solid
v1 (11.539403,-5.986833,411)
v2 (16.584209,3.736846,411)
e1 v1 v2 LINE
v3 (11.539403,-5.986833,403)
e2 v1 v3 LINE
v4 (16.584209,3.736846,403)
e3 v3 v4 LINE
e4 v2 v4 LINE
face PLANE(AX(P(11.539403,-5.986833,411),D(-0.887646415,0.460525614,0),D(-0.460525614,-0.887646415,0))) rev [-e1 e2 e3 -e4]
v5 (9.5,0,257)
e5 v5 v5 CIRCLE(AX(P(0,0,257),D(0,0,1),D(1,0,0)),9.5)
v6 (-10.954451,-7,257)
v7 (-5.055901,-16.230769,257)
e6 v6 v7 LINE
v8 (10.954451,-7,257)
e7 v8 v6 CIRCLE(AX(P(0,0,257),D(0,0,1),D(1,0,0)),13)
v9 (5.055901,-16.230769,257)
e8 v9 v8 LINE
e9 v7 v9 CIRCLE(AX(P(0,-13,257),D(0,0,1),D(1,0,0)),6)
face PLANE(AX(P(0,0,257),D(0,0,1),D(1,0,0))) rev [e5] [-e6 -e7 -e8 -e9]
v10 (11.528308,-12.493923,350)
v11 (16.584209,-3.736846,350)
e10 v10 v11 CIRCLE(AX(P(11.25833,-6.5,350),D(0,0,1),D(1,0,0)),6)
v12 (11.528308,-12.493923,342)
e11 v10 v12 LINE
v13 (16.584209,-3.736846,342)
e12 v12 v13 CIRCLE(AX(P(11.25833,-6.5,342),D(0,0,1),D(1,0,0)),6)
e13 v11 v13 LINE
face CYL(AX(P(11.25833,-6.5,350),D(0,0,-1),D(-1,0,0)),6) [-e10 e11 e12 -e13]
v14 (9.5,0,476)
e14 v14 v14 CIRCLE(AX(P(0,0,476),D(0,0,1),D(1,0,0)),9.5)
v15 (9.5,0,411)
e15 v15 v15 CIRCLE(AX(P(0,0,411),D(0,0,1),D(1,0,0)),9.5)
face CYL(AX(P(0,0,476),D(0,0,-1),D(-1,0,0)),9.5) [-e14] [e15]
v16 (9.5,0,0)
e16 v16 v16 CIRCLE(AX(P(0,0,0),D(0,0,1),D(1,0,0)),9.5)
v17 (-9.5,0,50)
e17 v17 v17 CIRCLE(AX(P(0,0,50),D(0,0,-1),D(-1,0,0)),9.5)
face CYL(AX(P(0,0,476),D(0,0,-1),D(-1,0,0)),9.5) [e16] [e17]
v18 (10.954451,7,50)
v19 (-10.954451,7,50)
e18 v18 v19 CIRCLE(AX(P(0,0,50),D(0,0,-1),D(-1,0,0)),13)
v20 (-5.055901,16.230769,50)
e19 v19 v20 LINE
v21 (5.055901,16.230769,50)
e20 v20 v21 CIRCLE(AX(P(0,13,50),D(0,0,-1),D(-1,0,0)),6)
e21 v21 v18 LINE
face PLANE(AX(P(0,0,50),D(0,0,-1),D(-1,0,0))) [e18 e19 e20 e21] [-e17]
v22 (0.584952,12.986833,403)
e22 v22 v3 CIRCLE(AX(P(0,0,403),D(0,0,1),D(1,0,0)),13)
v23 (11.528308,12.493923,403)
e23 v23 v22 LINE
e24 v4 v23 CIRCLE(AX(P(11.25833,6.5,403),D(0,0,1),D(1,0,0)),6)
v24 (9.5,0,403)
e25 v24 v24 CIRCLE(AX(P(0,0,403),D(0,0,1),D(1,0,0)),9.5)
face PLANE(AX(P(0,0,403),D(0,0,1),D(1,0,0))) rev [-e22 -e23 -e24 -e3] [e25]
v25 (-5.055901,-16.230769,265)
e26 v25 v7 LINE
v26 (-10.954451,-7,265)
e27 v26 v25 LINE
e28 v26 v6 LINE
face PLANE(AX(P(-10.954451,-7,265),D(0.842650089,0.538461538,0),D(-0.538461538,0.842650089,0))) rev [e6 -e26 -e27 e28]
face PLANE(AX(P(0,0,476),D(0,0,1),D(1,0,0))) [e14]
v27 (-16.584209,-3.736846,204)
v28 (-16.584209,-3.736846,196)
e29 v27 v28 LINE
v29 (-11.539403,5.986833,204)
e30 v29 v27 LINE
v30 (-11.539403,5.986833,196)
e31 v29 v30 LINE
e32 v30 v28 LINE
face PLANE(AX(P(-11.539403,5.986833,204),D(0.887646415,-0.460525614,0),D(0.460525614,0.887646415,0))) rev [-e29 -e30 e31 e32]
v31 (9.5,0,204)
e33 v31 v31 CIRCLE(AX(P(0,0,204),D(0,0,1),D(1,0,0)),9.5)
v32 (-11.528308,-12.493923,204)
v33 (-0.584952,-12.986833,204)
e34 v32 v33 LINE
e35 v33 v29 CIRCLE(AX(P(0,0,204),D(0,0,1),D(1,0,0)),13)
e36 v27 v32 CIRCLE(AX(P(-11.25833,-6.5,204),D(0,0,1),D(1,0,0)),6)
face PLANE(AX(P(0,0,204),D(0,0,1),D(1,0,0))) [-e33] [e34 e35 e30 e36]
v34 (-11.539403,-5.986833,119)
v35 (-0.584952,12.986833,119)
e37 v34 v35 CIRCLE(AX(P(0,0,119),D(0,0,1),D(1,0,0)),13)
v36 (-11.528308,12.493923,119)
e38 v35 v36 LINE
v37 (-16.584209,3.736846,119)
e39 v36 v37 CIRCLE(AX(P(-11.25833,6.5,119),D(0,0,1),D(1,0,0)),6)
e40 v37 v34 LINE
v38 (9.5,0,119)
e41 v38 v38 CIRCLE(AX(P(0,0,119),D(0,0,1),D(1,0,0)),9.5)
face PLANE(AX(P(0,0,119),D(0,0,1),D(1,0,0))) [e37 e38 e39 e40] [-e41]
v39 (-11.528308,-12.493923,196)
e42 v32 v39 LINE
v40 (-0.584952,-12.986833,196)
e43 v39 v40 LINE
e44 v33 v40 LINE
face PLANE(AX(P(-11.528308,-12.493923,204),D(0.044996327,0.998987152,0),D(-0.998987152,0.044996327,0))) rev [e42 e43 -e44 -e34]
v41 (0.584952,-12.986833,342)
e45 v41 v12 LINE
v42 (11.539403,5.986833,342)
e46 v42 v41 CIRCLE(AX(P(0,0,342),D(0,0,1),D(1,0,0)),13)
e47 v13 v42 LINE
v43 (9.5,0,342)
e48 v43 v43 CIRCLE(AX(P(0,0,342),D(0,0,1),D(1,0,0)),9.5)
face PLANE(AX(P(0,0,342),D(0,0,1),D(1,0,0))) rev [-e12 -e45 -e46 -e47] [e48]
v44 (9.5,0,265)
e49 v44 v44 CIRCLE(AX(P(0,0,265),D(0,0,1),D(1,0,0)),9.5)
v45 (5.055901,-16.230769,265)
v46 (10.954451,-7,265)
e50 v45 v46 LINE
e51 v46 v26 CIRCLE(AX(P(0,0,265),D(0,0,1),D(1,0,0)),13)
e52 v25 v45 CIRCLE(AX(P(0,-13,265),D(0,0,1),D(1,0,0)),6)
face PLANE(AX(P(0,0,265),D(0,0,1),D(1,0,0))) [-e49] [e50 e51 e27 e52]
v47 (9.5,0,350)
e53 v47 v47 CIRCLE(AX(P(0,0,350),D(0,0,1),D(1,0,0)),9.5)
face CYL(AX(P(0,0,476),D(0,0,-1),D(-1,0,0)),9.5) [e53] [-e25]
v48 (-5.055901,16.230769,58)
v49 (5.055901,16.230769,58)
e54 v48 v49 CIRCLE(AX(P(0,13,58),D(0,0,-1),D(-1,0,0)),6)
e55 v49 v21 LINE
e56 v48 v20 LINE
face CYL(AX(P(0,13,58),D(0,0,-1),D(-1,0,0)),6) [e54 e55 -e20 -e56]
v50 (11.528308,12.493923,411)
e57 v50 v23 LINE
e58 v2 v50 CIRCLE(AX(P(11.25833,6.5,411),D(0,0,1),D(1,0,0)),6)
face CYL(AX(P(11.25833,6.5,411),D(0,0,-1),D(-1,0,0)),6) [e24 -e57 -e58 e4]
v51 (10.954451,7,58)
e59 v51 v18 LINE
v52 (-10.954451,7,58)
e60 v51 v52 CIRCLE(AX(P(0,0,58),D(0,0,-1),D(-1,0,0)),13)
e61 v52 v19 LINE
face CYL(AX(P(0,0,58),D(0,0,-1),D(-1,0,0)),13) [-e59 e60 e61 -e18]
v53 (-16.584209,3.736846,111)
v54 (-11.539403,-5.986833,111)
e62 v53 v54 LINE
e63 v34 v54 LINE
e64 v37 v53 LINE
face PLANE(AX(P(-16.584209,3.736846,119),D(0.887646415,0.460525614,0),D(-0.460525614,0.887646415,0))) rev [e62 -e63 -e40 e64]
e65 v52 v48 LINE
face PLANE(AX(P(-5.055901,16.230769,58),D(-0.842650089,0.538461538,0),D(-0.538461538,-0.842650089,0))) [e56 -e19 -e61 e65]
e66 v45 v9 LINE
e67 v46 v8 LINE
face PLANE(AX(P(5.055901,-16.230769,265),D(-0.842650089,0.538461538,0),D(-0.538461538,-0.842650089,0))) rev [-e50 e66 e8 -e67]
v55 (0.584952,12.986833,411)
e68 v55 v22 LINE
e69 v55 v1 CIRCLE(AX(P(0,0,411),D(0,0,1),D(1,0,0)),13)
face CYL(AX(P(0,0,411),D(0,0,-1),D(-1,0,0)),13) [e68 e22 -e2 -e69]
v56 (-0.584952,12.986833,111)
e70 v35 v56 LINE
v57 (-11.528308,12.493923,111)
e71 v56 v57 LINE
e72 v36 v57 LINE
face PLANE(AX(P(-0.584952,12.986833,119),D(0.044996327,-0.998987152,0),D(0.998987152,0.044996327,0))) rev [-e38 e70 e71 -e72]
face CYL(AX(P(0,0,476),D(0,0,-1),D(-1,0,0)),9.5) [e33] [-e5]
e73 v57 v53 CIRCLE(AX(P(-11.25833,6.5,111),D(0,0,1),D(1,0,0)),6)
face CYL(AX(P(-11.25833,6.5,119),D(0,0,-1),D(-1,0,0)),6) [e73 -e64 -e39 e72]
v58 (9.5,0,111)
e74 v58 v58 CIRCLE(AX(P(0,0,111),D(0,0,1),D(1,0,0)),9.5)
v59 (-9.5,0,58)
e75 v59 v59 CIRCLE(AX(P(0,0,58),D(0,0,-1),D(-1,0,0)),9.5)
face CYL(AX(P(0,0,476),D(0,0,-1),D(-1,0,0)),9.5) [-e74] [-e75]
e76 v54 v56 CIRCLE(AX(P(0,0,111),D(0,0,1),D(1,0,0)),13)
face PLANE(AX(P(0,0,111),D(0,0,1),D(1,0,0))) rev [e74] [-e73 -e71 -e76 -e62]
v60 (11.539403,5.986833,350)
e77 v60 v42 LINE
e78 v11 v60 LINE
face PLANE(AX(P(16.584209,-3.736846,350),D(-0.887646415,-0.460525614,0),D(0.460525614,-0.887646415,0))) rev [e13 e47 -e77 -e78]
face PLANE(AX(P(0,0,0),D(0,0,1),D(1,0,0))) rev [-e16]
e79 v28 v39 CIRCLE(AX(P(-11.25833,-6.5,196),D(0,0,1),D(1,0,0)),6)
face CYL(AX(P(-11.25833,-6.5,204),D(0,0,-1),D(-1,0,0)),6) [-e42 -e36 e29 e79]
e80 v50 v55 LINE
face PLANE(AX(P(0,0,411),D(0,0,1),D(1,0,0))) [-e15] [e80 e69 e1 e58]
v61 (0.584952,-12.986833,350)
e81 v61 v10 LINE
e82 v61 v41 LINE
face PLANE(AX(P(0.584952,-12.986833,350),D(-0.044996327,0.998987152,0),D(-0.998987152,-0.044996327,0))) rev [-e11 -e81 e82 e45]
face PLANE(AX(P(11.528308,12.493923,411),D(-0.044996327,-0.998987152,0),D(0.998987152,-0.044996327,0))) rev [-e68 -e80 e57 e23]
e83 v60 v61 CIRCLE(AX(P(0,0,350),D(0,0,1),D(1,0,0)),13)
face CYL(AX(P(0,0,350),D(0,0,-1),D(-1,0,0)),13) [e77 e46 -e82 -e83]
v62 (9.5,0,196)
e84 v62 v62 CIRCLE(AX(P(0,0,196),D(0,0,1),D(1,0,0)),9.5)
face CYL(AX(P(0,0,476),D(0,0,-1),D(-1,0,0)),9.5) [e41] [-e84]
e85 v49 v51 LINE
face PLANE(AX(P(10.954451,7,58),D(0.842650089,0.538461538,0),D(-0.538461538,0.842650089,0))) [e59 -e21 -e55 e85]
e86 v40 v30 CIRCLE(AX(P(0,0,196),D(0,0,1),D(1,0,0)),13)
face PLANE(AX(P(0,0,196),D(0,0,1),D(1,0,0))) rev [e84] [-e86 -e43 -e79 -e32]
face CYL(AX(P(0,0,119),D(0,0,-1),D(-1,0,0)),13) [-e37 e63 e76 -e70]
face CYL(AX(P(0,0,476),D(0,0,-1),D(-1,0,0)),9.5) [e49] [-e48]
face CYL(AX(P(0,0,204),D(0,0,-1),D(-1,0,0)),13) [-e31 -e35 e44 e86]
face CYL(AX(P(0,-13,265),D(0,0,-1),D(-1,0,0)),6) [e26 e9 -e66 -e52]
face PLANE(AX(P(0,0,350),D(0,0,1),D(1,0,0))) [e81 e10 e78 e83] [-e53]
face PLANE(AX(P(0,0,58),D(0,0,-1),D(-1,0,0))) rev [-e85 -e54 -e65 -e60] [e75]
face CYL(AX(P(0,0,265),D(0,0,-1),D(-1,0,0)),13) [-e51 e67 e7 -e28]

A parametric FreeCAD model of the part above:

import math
import FreeCAD as App
import Part
import Sketcher

V = App.Vector

doc = App.newDocument("Part")
params = doc.addObject("Spreadsheet::Sheet", "Params")
for row, (alias, value) in enumerate([
    ("sketch1_diameter", "19 mm"),
    ("pad1_length", "476 mm"),
    ("sketch2_radius", "13 mm"),
    ("sketch2_radius2", "6 mm"),
    ("pad2_length", "8 mm"),
    ("sketch3_radius", "6 mm"),
    ("sketch3_radius2", "13 mm"),
    ("pad3_length", "8 mm"),
    ("sketch4_radius", "6 mm"),
    ("sketch4_radius2", "13 mm"),
    ("pad4_length", "8 mm"),
    ("sketch5_radius", "6 mm"),
    ("sketch5_radius2", "13 mm"),
    ("pad5_length", "8 mm"),
    ("sketch6_radius", "6 mm"),
    ("sketch6_radius2", "13 mm"),
    ("pad6_length", "8 mm"),
    ("sketch7_radius", "6 mm"),
    ("sketch7_radius2", "13 mm"),
    ("pad7_length", "8 mm"),
], start=1):
    params.set(f"A{row}", alias)
    params.set(f"B{row}", "=" + value)
    params.setAlias(f"B{row}", alias)

body = doc.addObject("PartDesign::Body", "Body")

sketch1 = doc.addObject("Sketcher::SketchObject", "Sketch")
body.addObject(sketch1)
sketch1.AttachmentSupport = (doc.XY_Plane, [""])
sketch1.MapMode = "FlatFace"
sketch1.addGeometry(Part.Circle(V(0, 0, 0), V(0, 0, 1), 10), False)
sketch1.addConstraint(Sketcher.Constraint("Coincident", 0, 3, -1, 1))
sketch1.addConstraint(Sketcher.Constraint("Diameter", 0, 19.0))
sketch1.setExpression("Constraints[1]", "Params.sketch1_diameter")
pad1 = doc.addObject("PartDesign::Pad", "Pad")
body.addObject(pad1)
pad1.Profile = sketch1
pad1.setExpression("Length", "Params.pad1_length")

sketch2 = doc.addObject("Sketcher::SketchObject", "Sketch001")
body.addObject(sketch2)
sketch2.AttachmentSupport = (doc.XY_Plane, [""])
sketch2.MapMode = "FlatFace"
sketch2.AttachmentOffset = App.Placement(V(0, 0, 50), App.Rotation())
sketch2.addGeometry(Part.LineSegment(V(5, 16, 0), V(11, 7, 0)), False)
sketch2.addGeometry(Part.ArcOfCircle(Part.Circle(V(0, 0, 0), V(0, 0, 1), 13), math.radians(147), math.radians(393)), False)
sketch2.addGeometry(Part.LineSegment(V(-11, 7, 0), V(-5, 16, 0)), False)
sketch2.addGeometry(Part.ArcOfCircle(Part.Circle(V(0, 13, 0), V(0, 0, 1), 6), math.radians(33), math.radians(147)), False)
sketch2.addConstraint(Sketcher.Constraint("Tangent", 0, 2, 1, 2))
sketch2.addConstraint(Sketcher.Constraint("Tangent", 1, 1, 2, 1))
sketch2.addConstraint(Sketcher.Constraint("Tangent", 2, 2, 3, 2))
sketch2.addConstraint(Sketcher.Constraint("Tangent", 3, 1, 0, 1))
sketch2.addConstraint(Sketcher.Constraint("Coincident", 1, 3, -1, 1))
sketch2.addConstraint(Sketcher.Constraint("PointOnObject", 3, 3, -2))
sketch2.addConstraint(Sketcher.Constraint("Radius", 1, 13.0))
sketch2.addConstraint(Sketcher.Constraint("Radius", 3, 6.0))
sketch2.addConstraint(Sketcher.Constraint("DistanceY", -1, 1, 3, 3, 13.0))
sketch2.setExpression("Constraints[6]", "Params.sketch2_radius")
sketch2.setExpression("Constraints[7]", "Params.sketch2_radius2")
pad2 = doc.addObject("PartDesign::Pad", "Pad001")
body.addObject(pad2)
pad2.Profile = sketch2
pad2.setExpression("Length", "Params.pad2_length")

sketch3 = doc.addObject("Sketcher::SketchObject", "Sketch002")
body.addObject(sketch3)
sketch3.AttachmentSupport = (doc.XY_Plane, [""])
sketch3.MapMode = "FlatFace"
sketch3.AttachmentOffset = App.Placement(V(0, 0, 111), App.Rotation())
sketch3.addGeometry(Part.LineSegment(V(-1, 13, 0), V(-12, 12, 0)), False)
sketch3.addGeometry(Part.ArcOfCircle(Part.Circle(V(-11, 6, 0), V(0, 0, 1), 6), math.radians(93), math.radians(207)), False)
sketch3.addGeometry(Part.LineSegment(V(-17, 4, 0), V(-12, -6, 0)), False)
sketch3.addGeometry(Part.ArcOfCircle(Part.Circle(V(0, 0, 0), V(0, 0, 1), 13), math.radians(-153), math.radians(93)), False)
sketch3.addConstraint(Sketcher.Constraint("Tangent", 0, 2, 1, 1))
sketch3.addConstraint(Sketcher.Constraint("Tangent", 1, 2, 2, 1))
sketch3.addConstraint(Sketcher.Constraint("Tangent", 2, 2, 3, 1))
sketch3.addConstraint(Sketcher.Constraint("Tangent", 3, 2, 0, 1))
sketch3.addConstraint(Sketcher.Constraint("Coincident", 3, 3, -1, 1))
sketch3.addConstraint(Sketcher.Constraint("Radius", 1, 6.0))
sketch3.addConstraint(Sketcher.Constraint("Radius", 3, 13.0))
sketch3.addConstraint(Sketcher.Constraint("DistanceY", -1, 1, 1, 3, 6.5))
sketch3.addConstraint(Sketcher.Constraint("DistanceX", 1, 2, 0, 2, 5.055901))
sketch3.setExpression("Constraints[5]", "Params.sketch3_radius")
sketch3.setExpression("Constraints[6]", "Params.sketch3_radius2")
pad3 = doc.addObject("PartDesign::Pad", "Pad002")
body.addObject(pad3)
pad3.Profile = sketch3
pad3.setExpression("Length", "Params.pad3_length")

sketch4 = doc.addObject("Sketcher::SketchObject", "Sketch003")
body.addObject(sketch4)
sketch4.AttachmentSupport = (doc.XY_Plane, [""])
sketch4.MapMode = "FlatFace"
sketch4.AttachmentOffset = App.Placement(V(0, 0, 196), App.Rotation())
sketch4.addGeometry(Part.LineSegment(V(-12, 6, 0), V(-17, -4, 0)), False)
sketch4.addGeometry(Part.ArcOfCircle(Part.Circle(V(-11, -6, 0), V(0, 0, 1), 6), math.radians(153), math.radians(267)), False)
sketch4.addGeometry(Part.LineSegment(V(-12, -12, 0), V(-1, -13, 0)), False)
sketch4.addGeometry(Part.ArcOfCircle(Part.Circle(V(0, 0, 0), V(0, 0, 1), 13), math.radians(-93), math.radians(153)), False)
sketch4.addConstraint(Sketcher.Constraint("Tangent", 0, 2, 1, 1))
sketch4.addConstraint(Sketcher.Constraint("Tangent", 1, 2, 2, 1))
sketch4.addConstraint(Sketcher.Constraint("Tangent", 2, 2, 3, 1))
sketch4.addConstraint(Sketcher.Constraint("Tangent", 3, 2, 0, 1))
sketch4.addConstraint(Sketcher.Constraint("Coincident", 3, 3, -1, 1))
sketch4.addConstraint(Sketcher.Constraint("Radius", 1, 6.0))
sketch4.addConstraint(Sketcher.Constraint("Radius", 3, 13.0))
sketch4.addConstraint(Sketcher.Constraint("DistanceY", 1, 3, -1, 1, 6.5))
sketch4.addConstraint(Sketcher.Constraint("DistanceX", 0, 2, 1, 2, 5.055901))
sketch4.setExpression("Constraints[5]", "Params.sketch4_radius")
sketch4.setExpression("Constraints[6]", "Params.sketch4_radius2")
pad4 = doc.addObject("PartDesign::Pad", "Pad003")
body.addObject(pad4)
pad4.Profile = sketch4
pad4.setExpression("Length", "Params.pad4_length")

sketch5 = doc.addObject("Sketcher::SketchObject", "Sketch004")
body.addObject(sketch5)
sketch5.AttachmentSupport = (doc.XY_Plane, [""])
sketch5.MapMode = "FlatFace"
sketch5.AttachmentOffset = App.Placement(V(0, 0, 257), App.Rotation())
sketch5.addGeometry(Part.LineSegment(V(-11, -7, 0), V(-5, -16, 0)), False)
sketch5.addGeometry(Part.ArcOfCircle(Part.Circle(V(0, -13, 0), V(0, 0, 1), 6), math.radians(-147), math.radians(-33)), False)
sketch5.addGeometry(Part.LineSegment(V(5, -16, 0), V(11, -7, 0)), False)
sketch5.addGeometry(Part.ArcOfCircle(Part.Circle(V(0, 0, 0), V(0, 0, 1), 13), math.radians(-33), math.radians(213)), False)
sketch5.addConstraint(Sketcher.Constraint("Tangent", 0, 2, 1, 1))
sketch5.addConstraint(Sketcher.Constraint("Tangent", 1, 2, 2, 1))
sketch5.addConstraint(Sketcher.Constraint("Tangent", 2, 2, 3, 1))
sketch5.addConstraint(Sketcher.Constraint("Tangent", 3, 2, 0, 1))
sketch5.addConstraint(Sketcher.Constraint("Coincident", 3, 3, -1, 1))
sketch5.addConstraint(Sketcher.Constraint("PointOnObject", 1, 3, -2))
sketch5.addConstraint(Sketcher.Constraint("Radius", 1, 6.0))
sketch5.addConstraint(Sketcher.Constraint("Radius", 3, 13.0))
sketch5.addConstraint(Sketcher.Constraint("DistanceY", 1, 3, -1, 1, 13.0))
sketch5.setExpression("Constraints[6]", "Params.sketch5_radius")
sketch5.setExpression("Constraints[7]", "Params.sketch5_radius2")
pad5 = doc.addObject("PartDesign::Pad", "Pad004")
body.addObject(pad5)
pad5.Profile = sketch5
pad5.setExpression("Length", "Params.pad5_length")

sketch6 = doc.addObject("Sketcher::SketchObject", "Sketch005")
body.addObject(sketch6)
sketch6.AttachmentSupport = (doc.XY_Plane, [""])
sketch6.MapMode = "FlatFace"
sketch6.AttachmentOffset = App.Placement(V(0, 0, 342), App.Rotation())
sketch6.addGeometry(Part.LineSegment(V(1, -13, 0), V(12, -12, 0)), False)
sketch6.addGeometry(Part.ArcOfCircle(Part.Circle(V(11, -6, 0), V(0, 0, 1), 6), math.radians(-87), math.radians(27)), False)
sketch6.addGeometry(Part.LineSegment(V(17, -4, 0), V(12, 6, 0)), False)
sketch6.addGeometry(Part.ArcOfCircle(Part.Circle(V(0, 0, 0), V(0, 0, 1), 13), math.radians(27), math.radians(273)), False)
sketch6.addConstraint(Sketcher.Constraint("Tangent", 0, 2, 1, 1))
sketch6.addConstraint(Sketcher.Constraint("Tangent", 1, 2, 2, 1))
sketch6.addConstraint(Sketcher.Constraint("Tangent", 2, 2, 3, 1))
sketch6.addConstraint(Sketcher.Constraint("Tangent", 3, 2, 0, 1))
sketch6.addConstraint(Sketcher.Constraint("Coincident", 3, 3, -1, 1))
sketch6.addConstraint(Sketcher.Constraint("Radius", 1, 6.0))
sketch6.addConstraint(Sketcher.Constraint("Radius", 3, 13.0))
sketch6.addConstraint(Sketcher.Constraint("DistanceY", 1, 3, -1, 1, 6.5))
sketch6.addConstraint(Sketcher.Constraint("DistanceX", 0, 2, 1, 2, 5.055901))
sketch6.setExpression("Constraints[5]", "Params.sketch6_radius")
sketch6.setExpression("Constraints[6]", "Params.sketch6_radius2")
pad6 = doc.addObject("PartDesign::Pad", "Pad005")
body.addObject(pad6)
pad6.Profile = sketch6
pad6.setExpression("Length", "Params.pad6_length")

sketch7 = doc.addObject("Sketcher::SketchObject", "Sketch006")
body.addObject(sketch7)
sketch7.AttachmentSupport = (doc.XY_Plane, [""])
sketch7.MapMode = "FlatFace"
sketch7.AttachmentOffset = App.Placement(V(0, 0, 403), App.Rotation())
sketch7.addGeometry(Part.LineSegment(V(12, -6, 0), V(17, 4, 0)), False)
sketch7.addGeometry(Part.ArcOfCircle(Part.Circle(V(11, 6, 0), V(0, 0, 1), 6), math.radians(-27), math.radians(87)), False)
sketch7.addGeometry(Part.LineSegment(V(12, 12, 0), V(1, 13, 0)), False)
sketch7.addGeometry(Part.ArcOfCircle(Part.Circle(V(0, 0, 0), V(0, 0, 1), 13), math.radians(87), math.radians(333)), False)
sketch7.addConstraint(Sketcher.Constraint("Tangent", 0, 2, 1, 1))
sketch7.addConstraint(Sketcher.Constraint("Tangent", 1, 2, 2, 1))
sketch7.addConstraint(Sketcher.Constraint("Tangent", 2, 2, 3, 1))
sketch7.addConstraint(Sketcher.Constraint("Tangent", 3, 2, 0, 1))
sketch7.addConstraint(Sketcher.Constraint("Coincident", 3, 3, -1, 1))
sketch7.addConstraint(Sketcher.Constraint("Radius", 1, 6.0))
sketch7.addConstraint(Sketcher.Constraint("Radius", 3, 13.0))
sketch7.addConstraint(Sketcher.Constraint("DistanceY", -1, 1, 1, 3, 6.5))
sketch7.addConstraint(Sketcher.Constraint("DistanceX", 1, 2, 0, 2, 5.055901))
sketch7.setExpression("Constraints[5]", "Params.sketch7_radius")
sketch7.setExpression("Constraints[6]", "Params.sketch7_radius2")
pad7 = doc.addObject("PartDesign::Pad", "Pad006")
body.addObject(pad7)
pad7.Profile = sketch7
pad7.setExpression("Length", "Params.pad7_length")

doc.recompute()
